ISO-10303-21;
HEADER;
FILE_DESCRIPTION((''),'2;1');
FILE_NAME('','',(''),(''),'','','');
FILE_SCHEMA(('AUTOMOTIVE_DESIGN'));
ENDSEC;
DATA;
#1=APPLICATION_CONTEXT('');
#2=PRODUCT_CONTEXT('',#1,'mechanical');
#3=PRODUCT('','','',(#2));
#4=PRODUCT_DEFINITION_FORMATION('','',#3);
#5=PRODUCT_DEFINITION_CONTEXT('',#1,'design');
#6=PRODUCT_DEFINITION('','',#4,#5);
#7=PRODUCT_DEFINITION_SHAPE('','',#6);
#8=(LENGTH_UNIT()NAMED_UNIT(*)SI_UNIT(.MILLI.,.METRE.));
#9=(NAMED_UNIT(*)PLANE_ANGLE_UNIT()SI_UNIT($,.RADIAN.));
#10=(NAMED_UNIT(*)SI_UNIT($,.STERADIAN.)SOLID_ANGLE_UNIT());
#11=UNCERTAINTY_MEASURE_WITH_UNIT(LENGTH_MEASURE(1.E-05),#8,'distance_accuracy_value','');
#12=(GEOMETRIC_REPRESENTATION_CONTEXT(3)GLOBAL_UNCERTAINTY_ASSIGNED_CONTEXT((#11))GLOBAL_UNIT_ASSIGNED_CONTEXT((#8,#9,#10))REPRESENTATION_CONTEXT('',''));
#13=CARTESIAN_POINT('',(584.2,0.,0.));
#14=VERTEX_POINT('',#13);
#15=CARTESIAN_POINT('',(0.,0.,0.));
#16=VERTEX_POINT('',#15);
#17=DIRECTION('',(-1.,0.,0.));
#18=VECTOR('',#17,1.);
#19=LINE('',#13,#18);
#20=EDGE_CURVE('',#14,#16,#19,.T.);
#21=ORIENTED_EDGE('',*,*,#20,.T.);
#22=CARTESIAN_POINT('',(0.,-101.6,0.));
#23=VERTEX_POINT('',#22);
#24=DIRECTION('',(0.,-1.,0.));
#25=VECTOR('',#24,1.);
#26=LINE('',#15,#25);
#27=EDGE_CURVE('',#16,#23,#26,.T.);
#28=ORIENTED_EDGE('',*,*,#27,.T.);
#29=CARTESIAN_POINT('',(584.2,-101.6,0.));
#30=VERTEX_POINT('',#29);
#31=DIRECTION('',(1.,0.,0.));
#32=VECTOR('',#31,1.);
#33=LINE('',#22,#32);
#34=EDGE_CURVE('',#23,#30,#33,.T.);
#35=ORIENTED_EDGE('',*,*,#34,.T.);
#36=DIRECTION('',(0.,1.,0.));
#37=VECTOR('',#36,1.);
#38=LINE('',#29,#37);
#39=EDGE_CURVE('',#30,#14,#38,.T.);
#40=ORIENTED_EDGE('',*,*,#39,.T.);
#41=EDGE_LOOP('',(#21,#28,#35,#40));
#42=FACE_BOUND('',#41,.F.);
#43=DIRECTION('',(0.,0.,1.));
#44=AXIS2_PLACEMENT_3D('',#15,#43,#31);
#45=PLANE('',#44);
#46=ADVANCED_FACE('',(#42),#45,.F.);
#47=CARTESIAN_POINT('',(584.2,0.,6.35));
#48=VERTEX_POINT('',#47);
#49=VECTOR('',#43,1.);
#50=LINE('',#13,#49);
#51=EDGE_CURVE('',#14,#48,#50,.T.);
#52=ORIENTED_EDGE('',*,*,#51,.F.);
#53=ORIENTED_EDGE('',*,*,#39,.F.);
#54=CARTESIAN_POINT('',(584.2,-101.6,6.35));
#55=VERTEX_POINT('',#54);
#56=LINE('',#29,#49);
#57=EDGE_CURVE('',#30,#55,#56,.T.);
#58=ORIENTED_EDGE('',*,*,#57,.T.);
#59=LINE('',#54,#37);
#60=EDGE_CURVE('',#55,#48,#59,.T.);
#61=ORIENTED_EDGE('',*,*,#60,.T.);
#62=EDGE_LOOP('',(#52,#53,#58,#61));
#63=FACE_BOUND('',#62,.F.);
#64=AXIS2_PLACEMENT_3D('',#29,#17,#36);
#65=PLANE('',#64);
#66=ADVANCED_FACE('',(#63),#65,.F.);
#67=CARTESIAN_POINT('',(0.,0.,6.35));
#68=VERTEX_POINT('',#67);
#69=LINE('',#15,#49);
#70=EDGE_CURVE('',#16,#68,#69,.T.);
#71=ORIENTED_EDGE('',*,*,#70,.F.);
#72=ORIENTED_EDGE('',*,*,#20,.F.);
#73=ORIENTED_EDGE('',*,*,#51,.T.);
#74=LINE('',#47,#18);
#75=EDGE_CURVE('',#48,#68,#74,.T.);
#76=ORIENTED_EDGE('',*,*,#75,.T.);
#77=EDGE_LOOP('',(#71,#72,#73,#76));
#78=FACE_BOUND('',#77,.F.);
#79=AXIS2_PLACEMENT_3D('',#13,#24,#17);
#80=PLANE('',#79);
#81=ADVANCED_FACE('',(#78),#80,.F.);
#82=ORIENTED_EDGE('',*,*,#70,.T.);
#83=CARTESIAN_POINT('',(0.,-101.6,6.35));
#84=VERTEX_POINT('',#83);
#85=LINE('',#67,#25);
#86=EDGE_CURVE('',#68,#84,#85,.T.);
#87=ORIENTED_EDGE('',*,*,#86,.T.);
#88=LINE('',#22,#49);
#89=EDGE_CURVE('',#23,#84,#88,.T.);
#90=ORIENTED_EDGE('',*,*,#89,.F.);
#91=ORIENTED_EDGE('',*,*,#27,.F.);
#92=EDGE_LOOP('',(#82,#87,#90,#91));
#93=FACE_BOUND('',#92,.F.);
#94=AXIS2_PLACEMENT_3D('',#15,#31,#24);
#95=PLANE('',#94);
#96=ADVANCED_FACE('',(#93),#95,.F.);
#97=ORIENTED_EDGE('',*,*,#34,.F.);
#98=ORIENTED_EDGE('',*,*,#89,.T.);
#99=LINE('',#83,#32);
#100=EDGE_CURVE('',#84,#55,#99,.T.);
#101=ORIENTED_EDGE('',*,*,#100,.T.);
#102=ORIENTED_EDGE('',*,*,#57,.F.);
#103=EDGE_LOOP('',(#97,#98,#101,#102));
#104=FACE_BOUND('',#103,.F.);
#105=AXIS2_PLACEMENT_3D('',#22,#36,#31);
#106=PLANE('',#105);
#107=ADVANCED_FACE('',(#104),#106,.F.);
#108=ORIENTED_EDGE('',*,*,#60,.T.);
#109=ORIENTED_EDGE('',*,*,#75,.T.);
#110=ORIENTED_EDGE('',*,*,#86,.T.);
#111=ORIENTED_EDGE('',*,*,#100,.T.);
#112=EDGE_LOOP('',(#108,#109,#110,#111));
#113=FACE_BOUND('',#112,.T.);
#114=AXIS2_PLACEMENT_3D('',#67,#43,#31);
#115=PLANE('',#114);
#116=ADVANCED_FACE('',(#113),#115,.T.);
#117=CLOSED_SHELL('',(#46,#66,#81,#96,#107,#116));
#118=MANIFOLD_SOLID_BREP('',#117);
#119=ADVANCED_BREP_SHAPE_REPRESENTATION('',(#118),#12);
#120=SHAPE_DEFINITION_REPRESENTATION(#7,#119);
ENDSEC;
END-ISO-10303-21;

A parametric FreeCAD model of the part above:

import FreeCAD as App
import Part
import Sketcher
Q = App.Units.Quantity


def add_polygon(sketch, points):
    """Adds a closed chain of lines whose ends are joined by coincident constraints."""
    first, n = sketch.GeometryCount, len(points)
    for a, b in zip(points, points[1:] + points[:1]):
        sketch.addGeometry(Part.LineSegment(App.Vector(*a, 0), App.Vector(*b, 0)), False)
    for i in range(n):
        sketch.addConstraint(Sketcher.Constraint("Coincident", first + i, 2, first + (i + 1) % n, 1))

doc = App.newDocument("Part")
body = doc.addObject("PartDesign::Body", "Body")

sketch1 = doc.addObject("Sketcher::SketchObject", "Sketch")
body.addObject(sketch1)
sketch1.AttachmentSupport = (doc.XY_Plane, [""])
sketch1.MapMode = "FlatFace"
add_polygon(sketch1, [(584, 0), (0, 0), (0, -102), (584, -102)])
sketch1.addConstraint([
    Sketcher.Constraint("Horizontal", 0),
    Sketcher.Constraint("Vertical", 1),
    Sketcher.Constraint("Horizontal", 2),
    Sketcher.Constraint("Vertical", 3),
    Sketcher.Constraint("Coincident", 0, 2, -1, 1),
    Sketcher.Constraint("DistanceX", 0, 2, 0, 1, Q("23 in")),
    Sketcher.Constraint("DistanceY", 1, 2, 1, 1, Q("4 in")),
])
pad1 = doc.addObject("PartDesign::Pad", "Pad")
body.addObject(pad1)
pad1.Profile = sketch1
pad1.Length = Q("0.25 in")

doc.recompute()
